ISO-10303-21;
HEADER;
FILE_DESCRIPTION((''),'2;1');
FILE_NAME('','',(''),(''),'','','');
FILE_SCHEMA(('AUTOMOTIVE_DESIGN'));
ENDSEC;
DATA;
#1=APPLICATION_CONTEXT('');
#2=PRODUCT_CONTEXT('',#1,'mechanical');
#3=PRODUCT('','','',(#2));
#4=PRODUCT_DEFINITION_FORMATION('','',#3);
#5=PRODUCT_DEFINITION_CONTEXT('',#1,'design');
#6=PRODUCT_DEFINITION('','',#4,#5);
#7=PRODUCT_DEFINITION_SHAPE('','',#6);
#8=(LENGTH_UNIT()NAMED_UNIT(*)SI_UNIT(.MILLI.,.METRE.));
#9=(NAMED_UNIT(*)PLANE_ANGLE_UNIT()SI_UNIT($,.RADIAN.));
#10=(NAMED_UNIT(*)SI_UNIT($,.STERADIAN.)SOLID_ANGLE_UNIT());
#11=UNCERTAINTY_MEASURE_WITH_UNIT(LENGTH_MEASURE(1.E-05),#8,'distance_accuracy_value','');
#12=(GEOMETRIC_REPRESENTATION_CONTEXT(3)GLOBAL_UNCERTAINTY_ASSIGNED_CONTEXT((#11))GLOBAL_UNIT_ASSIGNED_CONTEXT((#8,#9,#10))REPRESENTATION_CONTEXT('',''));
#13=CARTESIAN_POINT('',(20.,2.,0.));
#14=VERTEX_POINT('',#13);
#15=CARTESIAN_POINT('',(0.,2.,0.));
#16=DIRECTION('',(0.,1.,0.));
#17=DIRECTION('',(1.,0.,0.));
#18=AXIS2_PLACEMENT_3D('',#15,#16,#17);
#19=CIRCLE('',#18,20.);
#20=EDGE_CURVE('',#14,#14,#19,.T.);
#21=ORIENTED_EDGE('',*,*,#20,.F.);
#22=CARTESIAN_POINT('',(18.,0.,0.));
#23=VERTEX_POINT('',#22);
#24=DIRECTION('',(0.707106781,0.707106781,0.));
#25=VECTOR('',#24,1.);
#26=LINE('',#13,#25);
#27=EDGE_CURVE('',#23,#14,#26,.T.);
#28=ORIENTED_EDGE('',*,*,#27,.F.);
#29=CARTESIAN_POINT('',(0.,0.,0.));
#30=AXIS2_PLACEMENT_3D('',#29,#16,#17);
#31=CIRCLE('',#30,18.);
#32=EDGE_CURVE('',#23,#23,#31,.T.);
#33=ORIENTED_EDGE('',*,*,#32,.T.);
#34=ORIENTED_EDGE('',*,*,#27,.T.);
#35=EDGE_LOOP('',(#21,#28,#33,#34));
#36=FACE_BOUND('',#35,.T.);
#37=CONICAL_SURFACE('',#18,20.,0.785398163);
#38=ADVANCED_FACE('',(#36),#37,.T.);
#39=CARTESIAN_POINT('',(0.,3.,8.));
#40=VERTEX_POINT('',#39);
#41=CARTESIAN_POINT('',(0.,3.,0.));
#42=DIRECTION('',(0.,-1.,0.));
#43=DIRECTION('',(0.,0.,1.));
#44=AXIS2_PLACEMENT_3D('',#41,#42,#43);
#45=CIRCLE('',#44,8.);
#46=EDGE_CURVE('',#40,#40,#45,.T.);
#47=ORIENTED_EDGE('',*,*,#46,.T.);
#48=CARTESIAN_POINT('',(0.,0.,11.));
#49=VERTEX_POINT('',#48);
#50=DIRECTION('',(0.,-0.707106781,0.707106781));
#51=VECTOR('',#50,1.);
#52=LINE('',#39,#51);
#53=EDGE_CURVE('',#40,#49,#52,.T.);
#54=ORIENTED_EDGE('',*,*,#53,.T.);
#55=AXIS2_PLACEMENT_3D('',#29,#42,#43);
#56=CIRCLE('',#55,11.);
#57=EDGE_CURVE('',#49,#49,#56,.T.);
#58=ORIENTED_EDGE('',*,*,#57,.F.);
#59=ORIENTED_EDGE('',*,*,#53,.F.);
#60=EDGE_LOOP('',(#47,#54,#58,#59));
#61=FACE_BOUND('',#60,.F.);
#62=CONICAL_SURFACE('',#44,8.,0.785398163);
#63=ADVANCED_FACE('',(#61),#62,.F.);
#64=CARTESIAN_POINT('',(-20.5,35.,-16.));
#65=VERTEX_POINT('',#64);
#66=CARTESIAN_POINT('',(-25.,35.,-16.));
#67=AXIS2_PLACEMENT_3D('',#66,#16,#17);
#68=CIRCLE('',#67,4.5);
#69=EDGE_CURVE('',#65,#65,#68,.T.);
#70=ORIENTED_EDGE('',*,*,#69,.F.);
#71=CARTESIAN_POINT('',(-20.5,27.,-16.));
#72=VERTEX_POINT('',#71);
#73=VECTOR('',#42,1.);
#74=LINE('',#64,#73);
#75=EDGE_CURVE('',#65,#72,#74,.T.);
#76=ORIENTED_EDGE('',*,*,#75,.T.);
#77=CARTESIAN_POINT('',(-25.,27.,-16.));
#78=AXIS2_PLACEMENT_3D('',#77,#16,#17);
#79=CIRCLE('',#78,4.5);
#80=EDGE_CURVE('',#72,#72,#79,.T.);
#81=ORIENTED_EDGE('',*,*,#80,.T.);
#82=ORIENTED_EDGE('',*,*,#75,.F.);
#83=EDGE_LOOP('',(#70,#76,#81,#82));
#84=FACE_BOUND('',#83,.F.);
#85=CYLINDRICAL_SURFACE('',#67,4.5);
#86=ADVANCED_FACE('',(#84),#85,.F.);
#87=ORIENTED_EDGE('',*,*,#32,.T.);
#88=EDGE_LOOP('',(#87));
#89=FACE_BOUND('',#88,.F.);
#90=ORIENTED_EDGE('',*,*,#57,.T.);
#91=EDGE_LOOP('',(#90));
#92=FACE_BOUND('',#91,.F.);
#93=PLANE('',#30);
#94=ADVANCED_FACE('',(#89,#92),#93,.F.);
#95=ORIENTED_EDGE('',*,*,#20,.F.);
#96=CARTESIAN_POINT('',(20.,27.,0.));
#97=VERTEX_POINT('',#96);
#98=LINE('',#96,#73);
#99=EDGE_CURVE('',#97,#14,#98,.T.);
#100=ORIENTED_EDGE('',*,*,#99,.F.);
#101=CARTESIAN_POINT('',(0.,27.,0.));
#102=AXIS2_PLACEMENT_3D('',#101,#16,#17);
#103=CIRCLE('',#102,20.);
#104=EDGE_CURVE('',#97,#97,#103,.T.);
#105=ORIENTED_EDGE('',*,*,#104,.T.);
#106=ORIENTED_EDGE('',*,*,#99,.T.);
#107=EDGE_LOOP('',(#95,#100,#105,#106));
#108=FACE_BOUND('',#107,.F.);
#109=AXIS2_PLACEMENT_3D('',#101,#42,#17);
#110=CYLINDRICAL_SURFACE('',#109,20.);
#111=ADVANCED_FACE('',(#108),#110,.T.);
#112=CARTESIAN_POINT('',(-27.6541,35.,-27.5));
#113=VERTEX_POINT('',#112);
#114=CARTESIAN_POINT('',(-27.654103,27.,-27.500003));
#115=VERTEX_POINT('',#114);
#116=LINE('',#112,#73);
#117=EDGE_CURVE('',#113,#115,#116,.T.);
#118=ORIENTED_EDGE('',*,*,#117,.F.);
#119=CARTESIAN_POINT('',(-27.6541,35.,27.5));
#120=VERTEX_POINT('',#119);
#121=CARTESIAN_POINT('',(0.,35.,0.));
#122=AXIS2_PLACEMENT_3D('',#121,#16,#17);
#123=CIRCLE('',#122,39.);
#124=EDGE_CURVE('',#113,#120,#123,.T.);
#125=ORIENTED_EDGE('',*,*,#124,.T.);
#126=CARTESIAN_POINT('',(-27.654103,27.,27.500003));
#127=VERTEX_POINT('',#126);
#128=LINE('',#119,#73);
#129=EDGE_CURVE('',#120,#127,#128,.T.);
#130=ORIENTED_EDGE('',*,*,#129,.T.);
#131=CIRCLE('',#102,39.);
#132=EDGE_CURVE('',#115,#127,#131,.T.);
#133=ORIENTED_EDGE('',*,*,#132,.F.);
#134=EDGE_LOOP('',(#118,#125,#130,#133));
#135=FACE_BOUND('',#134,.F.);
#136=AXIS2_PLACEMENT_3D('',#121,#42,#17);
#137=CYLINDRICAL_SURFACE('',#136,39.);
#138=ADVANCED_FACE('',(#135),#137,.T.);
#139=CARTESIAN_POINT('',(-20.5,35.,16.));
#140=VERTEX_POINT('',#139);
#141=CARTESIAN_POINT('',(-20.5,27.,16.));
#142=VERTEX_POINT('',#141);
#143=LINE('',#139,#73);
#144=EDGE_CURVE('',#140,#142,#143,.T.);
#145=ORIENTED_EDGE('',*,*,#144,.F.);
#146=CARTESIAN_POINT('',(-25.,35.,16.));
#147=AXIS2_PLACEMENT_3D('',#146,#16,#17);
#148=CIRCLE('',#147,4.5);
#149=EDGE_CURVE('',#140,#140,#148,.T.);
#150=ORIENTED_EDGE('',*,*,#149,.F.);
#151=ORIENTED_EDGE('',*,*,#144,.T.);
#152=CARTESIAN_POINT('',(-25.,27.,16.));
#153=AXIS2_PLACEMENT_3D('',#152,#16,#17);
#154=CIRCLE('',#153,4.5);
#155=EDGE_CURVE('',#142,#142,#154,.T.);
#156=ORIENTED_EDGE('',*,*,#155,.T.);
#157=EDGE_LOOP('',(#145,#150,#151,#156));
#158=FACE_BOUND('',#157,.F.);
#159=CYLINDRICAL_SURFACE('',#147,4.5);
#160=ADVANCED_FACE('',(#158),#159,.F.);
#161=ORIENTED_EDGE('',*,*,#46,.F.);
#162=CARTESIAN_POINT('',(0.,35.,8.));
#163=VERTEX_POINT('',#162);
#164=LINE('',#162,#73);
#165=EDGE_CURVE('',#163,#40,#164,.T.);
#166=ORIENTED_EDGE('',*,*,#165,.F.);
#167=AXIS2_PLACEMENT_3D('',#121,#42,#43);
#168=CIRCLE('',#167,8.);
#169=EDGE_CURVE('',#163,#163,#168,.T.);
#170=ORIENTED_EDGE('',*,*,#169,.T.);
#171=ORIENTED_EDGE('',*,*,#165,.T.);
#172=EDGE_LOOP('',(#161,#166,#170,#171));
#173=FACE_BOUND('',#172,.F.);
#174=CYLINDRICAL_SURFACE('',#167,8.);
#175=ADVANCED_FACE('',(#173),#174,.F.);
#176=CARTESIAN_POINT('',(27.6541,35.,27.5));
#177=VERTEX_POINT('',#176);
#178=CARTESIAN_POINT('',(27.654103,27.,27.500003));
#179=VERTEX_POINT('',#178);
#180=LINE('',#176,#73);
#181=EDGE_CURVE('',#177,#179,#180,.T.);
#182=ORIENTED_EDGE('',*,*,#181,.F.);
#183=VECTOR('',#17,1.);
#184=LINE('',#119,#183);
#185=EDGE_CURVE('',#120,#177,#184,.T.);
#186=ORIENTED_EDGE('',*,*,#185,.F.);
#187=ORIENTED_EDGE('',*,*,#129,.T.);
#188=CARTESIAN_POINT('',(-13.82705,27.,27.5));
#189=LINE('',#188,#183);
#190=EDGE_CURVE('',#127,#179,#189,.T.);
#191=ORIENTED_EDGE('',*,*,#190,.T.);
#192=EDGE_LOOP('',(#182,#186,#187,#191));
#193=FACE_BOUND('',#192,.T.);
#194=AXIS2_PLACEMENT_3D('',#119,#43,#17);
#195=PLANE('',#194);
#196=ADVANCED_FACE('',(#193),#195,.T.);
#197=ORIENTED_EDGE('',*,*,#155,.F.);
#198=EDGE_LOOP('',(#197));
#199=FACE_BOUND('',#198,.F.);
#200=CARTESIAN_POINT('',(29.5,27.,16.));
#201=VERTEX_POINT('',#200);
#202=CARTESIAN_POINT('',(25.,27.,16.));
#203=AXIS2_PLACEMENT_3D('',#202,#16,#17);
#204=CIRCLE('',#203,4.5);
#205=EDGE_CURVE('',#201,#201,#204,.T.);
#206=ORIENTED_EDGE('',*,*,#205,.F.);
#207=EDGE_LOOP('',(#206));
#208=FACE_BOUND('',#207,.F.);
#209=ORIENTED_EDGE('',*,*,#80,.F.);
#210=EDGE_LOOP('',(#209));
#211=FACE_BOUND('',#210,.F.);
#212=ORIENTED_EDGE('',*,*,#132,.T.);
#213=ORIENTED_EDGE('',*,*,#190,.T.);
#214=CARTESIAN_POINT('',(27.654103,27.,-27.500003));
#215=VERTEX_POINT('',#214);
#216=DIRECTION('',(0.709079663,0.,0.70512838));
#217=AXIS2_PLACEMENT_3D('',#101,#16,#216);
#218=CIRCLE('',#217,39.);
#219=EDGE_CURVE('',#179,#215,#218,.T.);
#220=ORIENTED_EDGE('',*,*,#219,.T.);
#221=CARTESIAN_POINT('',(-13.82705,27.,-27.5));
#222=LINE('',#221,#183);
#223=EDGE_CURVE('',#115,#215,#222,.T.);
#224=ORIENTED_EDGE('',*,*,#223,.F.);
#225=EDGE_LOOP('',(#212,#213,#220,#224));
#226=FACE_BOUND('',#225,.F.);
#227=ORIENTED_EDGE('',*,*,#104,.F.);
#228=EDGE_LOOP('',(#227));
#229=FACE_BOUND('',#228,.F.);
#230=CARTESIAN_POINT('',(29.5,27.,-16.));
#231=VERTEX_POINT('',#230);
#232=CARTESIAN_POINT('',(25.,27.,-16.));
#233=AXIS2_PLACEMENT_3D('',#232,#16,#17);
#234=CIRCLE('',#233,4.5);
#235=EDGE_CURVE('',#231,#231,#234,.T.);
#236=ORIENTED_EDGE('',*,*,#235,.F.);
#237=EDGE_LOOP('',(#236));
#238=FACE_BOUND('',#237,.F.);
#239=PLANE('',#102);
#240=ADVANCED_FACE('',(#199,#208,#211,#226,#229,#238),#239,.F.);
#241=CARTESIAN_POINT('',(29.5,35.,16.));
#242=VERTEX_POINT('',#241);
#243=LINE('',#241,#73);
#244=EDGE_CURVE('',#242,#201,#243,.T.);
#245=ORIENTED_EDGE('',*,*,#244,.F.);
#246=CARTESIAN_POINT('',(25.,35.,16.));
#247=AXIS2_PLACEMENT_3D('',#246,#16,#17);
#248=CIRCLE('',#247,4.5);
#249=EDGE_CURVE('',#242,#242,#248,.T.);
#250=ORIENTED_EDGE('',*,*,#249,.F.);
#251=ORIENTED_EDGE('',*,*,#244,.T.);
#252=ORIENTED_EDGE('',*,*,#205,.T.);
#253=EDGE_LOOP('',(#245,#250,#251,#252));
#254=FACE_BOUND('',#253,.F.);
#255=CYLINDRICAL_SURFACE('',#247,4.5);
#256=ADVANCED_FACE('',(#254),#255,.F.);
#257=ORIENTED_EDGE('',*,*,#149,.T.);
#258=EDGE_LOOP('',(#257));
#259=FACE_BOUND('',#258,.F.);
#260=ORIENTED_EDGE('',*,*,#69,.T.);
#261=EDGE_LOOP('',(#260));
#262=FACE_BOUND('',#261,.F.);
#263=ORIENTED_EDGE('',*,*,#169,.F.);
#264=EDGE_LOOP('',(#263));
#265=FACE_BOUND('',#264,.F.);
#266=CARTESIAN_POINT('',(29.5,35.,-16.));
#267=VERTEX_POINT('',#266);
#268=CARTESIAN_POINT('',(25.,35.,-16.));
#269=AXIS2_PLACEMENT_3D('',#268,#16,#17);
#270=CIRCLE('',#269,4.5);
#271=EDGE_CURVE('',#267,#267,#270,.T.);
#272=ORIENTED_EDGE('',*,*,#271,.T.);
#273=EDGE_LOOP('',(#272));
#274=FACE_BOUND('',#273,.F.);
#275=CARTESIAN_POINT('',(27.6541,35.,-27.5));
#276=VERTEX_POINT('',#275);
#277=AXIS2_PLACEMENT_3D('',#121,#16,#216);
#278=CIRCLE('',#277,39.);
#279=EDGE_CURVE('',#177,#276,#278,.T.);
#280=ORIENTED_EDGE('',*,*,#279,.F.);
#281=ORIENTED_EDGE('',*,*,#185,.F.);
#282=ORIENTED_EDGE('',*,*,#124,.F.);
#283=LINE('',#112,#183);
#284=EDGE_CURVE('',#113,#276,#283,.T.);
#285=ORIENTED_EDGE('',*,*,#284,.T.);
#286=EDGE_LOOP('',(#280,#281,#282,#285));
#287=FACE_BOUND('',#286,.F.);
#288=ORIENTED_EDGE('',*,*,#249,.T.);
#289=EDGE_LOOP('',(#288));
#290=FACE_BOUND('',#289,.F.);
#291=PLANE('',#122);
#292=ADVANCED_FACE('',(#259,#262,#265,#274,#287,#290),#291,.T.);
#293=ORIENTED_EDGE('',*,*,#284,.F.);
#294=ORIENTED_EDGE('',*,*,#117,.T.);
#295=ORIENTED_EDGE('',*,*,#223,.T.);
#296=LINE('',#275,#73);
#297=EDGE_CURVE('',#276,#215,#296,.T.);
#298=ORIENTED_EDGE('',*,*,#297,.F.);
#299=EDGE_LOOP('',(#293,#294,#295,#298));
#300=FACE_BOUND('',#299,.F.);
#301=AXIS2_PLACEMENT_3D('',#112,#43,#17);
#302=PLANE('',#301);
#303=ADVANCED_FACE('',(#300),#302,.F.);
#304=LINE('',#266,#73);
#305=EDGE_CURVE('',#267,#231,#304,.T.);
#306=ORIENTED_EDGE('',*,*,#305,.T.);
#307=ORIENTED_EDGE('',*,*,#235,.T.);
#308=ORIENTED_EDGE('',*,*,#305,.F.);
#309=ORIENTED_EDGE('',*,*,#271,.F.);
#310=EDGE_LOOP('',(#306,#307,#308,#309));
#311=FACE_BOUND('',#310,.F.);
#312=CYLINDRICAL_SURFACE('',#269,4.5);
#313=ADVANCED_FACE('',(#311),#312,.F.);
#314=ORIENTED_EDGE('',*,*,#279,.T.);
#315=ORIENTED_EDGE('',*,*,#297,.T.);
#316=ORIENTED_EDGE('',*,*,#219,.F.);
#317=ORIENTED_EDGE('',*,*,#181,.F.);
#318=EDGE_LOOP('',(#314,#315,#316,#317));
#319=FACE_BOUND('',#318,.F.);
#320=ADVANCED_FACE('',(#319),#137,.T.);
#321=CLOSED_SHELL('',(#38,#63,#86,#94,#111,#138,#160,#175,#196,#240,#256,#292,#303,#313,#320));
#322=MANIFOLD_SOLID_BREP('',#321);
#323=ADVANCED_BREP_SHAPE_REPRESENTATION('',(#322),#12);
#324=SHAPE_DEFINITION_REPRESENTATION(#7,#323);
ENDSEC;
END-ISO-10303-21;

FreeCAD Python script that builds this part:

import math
import FreeCAD as App
import Part
import Sketcher
Q = App.Units.Quantity


def edges_at(feature, points):
    """Names of the edges that pass closest to the given points."""
    edges = feature.Shape.Edges
    near = lambda p: min(range(len(edges)), key=lambda i: edges[i].distToShape(Part.Vertex(*p))[0])
    return sorted({f"Edge{near(p) + 1}" for p in points})


def add_polygon(sketch, points):
    """Adds a closed chain of lines whose ends are joined by coincident constraints."""
    first, n = sketch.GeometryCount, len(points)
    for a, b in zip(points, points[1:] + points[:1]):
        sketch.addGeometry(Part.LineSegment(App.Vector(*a, 0), App.Vector(*b, 0)), False)
    for i in range(n):
        sketch.addConstraint(Sketcher.Constraint("Coincident", first + i, 2, first + (i + 1) % n, 1))

doc = App.newDocument("Part")
body = doc.addObject("PartDesign::Body", "Body")

# Sketch on XY plane
sketch1 = body.newObject("Sketcher::SketchObject", "Sketch")
sketch1.AttachmentSupport = (doc.getObject("XY_Plane"), [""])
sketch1.MapMode = "FlatFace"
add_polygon(sketch1, [(0, 35), (0, 0), (20, 0), (20, 27), (39, 27), (39, 35)])  # lines 0-5
sketch1.addConstraint(Sketcher.Constraint("Vertical", 0))
sketch1.addConstraint(Sketcher.Constraint("Horizontal", 1))
sketch1.addConstraint(Sketcher.Constraint("Vertical", 2))
sketch1.addConstraint(Sketcher.Constraint("Horizontal", 3))
sketch1.addConstraint(Sketcher.Constraint("Vertical", 4))
sketch1.addConstraint(Sketcher.Constraint("Horizontal", 5))
sketch1.addConstraint(Sketcher.Constraint("Coincident", 0, 2, -1, 1))
sketch1.addConstraint(Sketcher.Constraint("DistanceY", 0, 2, 0, 1, Q("35 mm")))
sketch1.addConstraint(Sketcher.Constraint("DistanceY", 4, 1, 4, 2, Q("8 mm")))
sketch1.addConstraint(Sketcher.Constraint("DistanceX", 1, 1, 1, 2, Q("20 mm")))
sketch1.addConstraint(Sketcher.Constraint("DistanceX", 3, 1, 3, 2, Q("19 mm")))
revolution = body.newObject("PartDesign::Revolution", "Revolution")
revolution.Profile = sketch1
revolution.ReferenceAxis = (sketch1, ["V_Axis"])
revolution.Angle = 360

# Sketch on XZ plane
sketch2 = body.newObject("Sketcher::SketchObject", "Sketch001")
sketch2.AttachmentSupport = (doc.getObject("XZ_Plane"), [""])
sketch2.MapMode = "FlatFace"
sketch2.AttachmentOffset = App.Placement(App.Vector(0, 0, -35), App.Rotation())
sketch2.addGeometry(Part.LineSegment(App.Vector(-27.7, -27.5, 0), App.Vector(27.7, -27.5, 0)), False)
sketch2.addGeometry(Part.ArcOfCircle(Part.Circle(App.Vector(0, 0, 0), App.Vector(0, 0, 1), 39), math.radians(-135), math.radians(-45)), False)
sketch2.addGeometry(Part.ArcOfCircle(Part.Circle(App.Vector(0, 0, 0), App.Vector(0, 0, 1), 39), math.radians(45), math.radians(135)), False)
sketch2.addGeometry(Part.LineSegment(App.Vector(-27.7, 27.5, 0), App.Vector(27.7, 27.5, 0)), False)
sketch2.addGeometry(Part.Circle(App.Vector(-25, -16, 0), App.Vector(0, 0, 1), 4.5), False)
sketch2.addGeometry(Part.Circle(App.Vector(-25, 16, 0), App.Vector(0, 0, 1), 4.5), False)
sketch2.addGeometry(Part.Circle(App.Vector(25, 16, 0), App.Vector(0, 0, 1), 4.5), False)
sketch2.addGeometry(Part.Circle(App.Vector(25, -16, 0), App.Vector(0, 0, 1), 4.5), False)
sketch2.addConstraint(Sketcher.Constraint("Coincident", 0, 1, 1, 1))
sketch2.addConstraint(Sketcher.Constraint("Coincident", 1, 2, 0, 2))
sketch2.addConstraint(Sketcher.Constraint("Coincident", 2, 1, 3, 2))
sketch2.addConstraint(Sketcher.Constraint("Coincident", 3, 1, 2, 2))
sketch2.addConstraint(Sketcher.Constraint("Horizontal", 0))
sketch2.addConstraint(Sketcher.Constraint("Horizontal", 3))
sketch2.addConstraint(Sketcher.Constraint("Coincident", 1, 3, -1, 1))
sketch2.addConstraint(Sketcher.Constraint("Coincident", 2, 3, -1, 1))
sketch2.addConstraint(Sketcher.Constraint("Equal", 1, 2))
sketch2.addConstraint(Sketcher.Constraint("Equal", 4, 5))
sketch2.addConstraint(Sketcher.Constraint("Equal", 5, 6))
sketch2.addConstraint(Sketcher.Constraint("Equal", 6, 7))
sketch2.addConstraint(Sketcher.Constraint("Symmetric", 4, 3, 6, 3, -1, 1))
sketch2.addConstraint(Sketcher.Constraint("Symmetric", 5, 3, 7, 3, -1, 1))
sketch2.addConstraint(Sketcher.Constraint("Symmetric", 5, 3, 6, 3, -2))
sketch2.addConstraint(Sketcher.Constraint("Vertical", 1, 2, 2, 1))
sketch2.addConstraint(Sketcher.Constraint("Diameter", 4, Q("9 mm")))
sketch2.addConstraint(Sketcher.Constraint("Radius", 1, Q("39 mm")))
sketch2.addConstraint(Sketcher.Constraint("DistanceY", 4, 3, 5, 3, Q("32 mm")))
sketch2.addConstraint(Sketcher.Constraint("DistanceX", 5, 3, 6, 3, Q("50 mm")))
sketch2.addConstraint(Sketcher.Constraint("DistanceY", 0, 1, -1, 1, Q("27.5 mm")))
pocket1 = body.newObject("PartDesign::Pocket", "Pocket")
pocket1.Profile = sketch2
pocket1.Type = "ThroughAll"
pocket1.Reversed = True

# Sketch on XZ plane
sketch3 = body.newObject("Sketcher::SketchObject", "Sketch002")
sketch3.AttachmentSupport = (doc.getObject("XZ_Plane"), [""])
sketch3.MapMode = "FlatFace"
sketch3.AttachmentOffset = App.Placement(App.Vector(0, 0, -35), App.Rotation())
sketch3.addGeometry(Part.Circle(App.Vector(0, 0, 0), App.Vector(0, 0, 1), 8), False)
sketch3.addConstraint(Sketcher.Constraint("Coincident", 0, 3, -1, 1))
sketch3.addConstraint(Sketcher.Constraint("Diameter", 0, Q("16 mm")))
doc.recompute()
hole = body.newObject("PartDesign::Hole", "Hole")
hole.Profile = sketch3
hole.ThreadType = "None"
hole.Diameter = 16
hole.DepthType = "ThroughAll"
hole.Reversed = True
doc.recompute()

chamfer = body.newObject("PartDesign::Chamfer", "Chamfer")
chamfer.Base = (hole, edges_at(hole, [(0, 0, -8)]))
chamfer.Size = 3
doc.recompute()

chamfer2 = body.newObject("PartDesign::Chamfer", "Chamfer001")
chamfer2.Base = (chamfer, edges_at(chamfer, [(-20, 0, 0)]))
chamfer2.Size = 2

doc.recompute()
